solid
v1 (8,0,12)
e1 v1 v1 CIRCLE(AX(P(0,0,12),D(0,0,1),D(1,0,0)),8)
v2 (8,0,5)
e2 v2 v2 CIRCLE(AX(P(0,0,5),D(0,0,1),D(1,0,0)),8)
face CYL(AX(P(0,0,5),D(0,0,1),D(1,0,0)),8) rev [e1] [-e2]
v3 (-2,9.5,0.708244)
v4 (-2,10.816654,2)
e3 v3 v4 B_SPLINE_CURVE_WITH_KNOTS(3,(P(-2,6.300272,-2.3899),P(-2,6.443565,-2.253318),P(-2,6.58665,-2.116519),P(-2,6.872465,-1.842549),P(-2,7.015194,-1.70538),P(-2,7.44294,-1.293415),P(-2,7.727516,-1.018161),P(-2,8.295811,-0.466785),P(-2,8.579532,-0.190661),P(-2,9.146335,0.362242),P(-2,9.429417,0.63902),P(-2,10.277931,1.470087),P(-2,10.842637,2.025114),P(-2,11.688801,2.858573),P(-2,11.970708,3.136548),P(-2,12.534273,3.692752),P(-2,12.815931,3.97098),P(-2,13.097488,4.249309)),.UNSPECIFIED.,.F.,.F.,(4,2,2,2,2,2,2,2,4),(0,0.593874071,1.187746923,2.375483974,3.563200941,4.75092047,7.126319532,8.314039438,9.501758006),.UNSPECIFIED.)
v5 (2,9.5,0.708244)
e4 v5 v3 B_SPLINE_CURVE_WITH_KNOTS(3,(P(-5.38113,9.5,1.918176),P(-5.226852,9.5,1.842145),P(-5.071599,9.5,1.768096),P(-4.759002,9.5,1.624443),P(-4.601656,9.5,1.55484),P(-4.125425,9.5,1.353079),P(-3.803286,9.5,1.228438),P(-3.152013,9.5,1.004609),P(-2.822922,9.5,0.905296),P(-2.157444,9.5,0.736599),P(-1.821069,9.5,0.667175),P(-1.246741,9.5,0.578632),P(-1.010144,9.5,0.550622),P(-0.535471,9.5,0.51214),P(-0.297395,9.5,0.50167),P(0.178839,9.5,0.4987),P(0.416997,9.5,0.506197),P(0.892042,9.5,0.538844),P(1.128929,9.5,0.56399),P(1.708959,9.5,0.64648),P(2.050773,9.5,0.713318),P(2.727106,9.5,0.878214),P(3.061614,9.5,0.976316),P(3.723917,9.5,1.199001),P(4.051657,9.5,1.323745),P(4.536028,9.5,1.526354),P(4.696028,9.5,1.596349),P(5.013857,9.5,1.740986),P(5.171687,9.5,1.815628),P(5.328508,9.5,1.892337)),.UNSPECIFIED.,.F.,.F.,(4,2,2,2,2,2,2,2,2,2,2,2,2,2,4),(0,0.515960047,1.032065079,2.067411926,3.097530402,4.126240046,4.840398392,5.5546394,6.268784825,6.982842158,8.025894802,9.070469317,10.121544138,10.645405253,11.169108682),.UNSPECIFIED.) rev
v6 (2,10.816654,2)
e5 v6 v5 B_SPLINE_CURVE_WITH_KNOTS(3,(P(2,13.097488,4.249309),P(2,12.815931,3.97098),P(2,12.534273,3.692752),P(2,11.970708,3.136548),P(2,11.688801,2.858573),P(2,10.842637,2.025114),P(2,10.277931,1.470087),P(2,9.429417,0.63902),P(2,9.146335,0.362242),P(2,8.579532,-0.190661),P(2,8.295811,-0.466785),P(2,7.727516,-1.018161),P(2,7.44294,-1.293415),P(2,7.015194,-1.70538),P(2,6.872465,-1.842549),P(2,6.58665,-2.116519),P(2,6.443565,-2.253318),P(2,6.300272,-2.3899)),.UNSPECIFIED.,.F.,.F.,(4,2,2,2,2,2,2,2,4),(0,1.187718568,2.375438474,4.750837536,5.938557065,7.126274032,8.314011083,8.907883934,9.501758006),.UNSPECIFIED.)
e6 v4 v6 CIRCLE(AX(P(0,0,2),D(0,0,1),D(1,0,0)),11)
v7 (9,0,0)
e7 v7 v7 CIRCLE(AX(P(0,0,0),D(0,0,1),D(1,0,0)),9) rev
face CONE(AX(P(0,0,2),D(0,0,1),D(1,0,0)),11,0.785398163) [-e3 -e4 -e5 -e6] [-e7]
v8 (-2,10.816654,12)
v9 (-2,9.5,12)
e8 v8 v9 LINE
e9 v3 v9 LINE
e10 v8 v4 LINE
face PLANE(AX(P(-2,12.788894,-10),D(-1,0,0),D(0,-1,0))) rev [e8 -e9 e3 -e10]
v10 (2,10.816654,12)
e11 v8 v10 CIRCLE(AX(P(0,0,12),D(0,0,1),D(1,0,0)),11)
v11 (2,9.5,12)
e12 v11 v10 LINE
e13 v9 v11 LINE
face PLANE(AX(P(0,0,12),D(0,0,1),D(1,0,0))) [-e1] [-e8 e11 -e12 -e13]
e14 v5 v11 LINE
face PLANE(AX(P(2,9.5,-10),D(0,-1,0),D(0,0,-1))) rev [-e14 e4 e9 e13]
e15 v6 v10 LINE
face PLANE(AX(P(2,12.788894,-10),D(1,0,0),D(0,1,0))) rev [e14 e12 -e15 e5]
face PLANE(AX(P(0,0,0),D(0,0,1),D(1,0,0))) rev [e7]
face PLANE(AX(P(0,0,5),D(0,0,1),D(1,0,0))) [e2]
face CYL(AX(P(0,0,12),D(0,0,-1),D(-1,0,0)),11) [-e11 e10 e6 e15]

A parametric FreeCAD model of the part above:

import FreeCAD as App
import Part
import Sketcher
from FreeCAD import Vector


def edges_at(feature, points):
    """Names of the edges that pass closest to the given points."""
    edges = feature.Shape.Edges
    near = lambda p: min(range(len(edges)), key=lambda i: edges[i].distToShape(Part.Vertex(*p))[0])
    return sorted({f"Edge{near(p) + 1}" for p in points})

doc = App.newDocument("Part")
body = doc.addObject("PartDesign::Body", "Body")

# Sketch on XY plane
sketch1 = body.newObject("Sketcher::SketchObject", "Sketch")
sketch1.AttachmentSupport = (doc.getObject("XY_Plane"), [""])
sketch1.MapMode = "FlatFace"
sketch1.addGeometry(Part.Circle(Vector(0, 0, 0), Vector(0, 0, 1), 11), False)
sketch1.addConstraint(Sketcher.Constraint("Coincident", 0, 3, -1, 1))
sketch1.addConstraint(Sketcher.Constraint("Diameter", 0, 22.0))
pad1 = body.newObject("PartDesign::Pad", "Pad")
pad1.Profile = sketch1
pad1.Length = 12

# Sketch on XY plane
sketch2 = body.newObject("Sketcher::SketchObject", "Sketch001")
sketch2.AttachmentSupport = (doc.getObject("XY_Plane"), [""])
sketch2.MapMode = "FlatFace"
sketch2.AttachmentOffset = App.Placement(Vector(0, 0, 12), App.Rotation())
sketch2.addGeometry(Part.Circle(Vector(0, 0, 0), Vector(0, 0, 1), 8), False)
sketch2.addConstraint(Sketcher.Constraint("Coincident", 0, 3, -1, 1))
sketch2.addConstraint(Sketcher.Constraint("Diameter", 0, 16.0))
pocket1 = body.newObject("PartDesign::Pocket", "Pocket")
pocket1.Profile = sketch2
pocket1.Length = 7
doc.recompute()

chamfer = body.newObject("PartDesign::Chamfer", "Chamfer")
chamfer.Base = (pocket1, edges_at(pocket1, [(-11, 0, 0)]))
chamfer.Size = 2

# Sketch on XY plane
sketch3 = body.newObject("Sketcher::SketchObject", "Sketch002")
sketch3.AttachmentSupport = (doc.getObject("XY_Plane"), [""])
sketch3.MapMode = "FlatFace"
sketch3.AttachmentOffset = App.Placement(Vector(0, 0, 12), App.Rotation())
sketch3.addGeometry(Part.LineSegment(Vector(-2, 12.788894, 0), Vector(-2, 9.5, 0)), False)
sketch3.addGeometry(Part.LineSegment(Vector(-2, 9.5, 0), Vector(2, 9.5, 0)), False)
sketch3.addGeometry(Part.LineSegment(Vector(2, 9.5, 0), Vector(2, 12.788894, 0)), False)
sketch3.addGeometry(Part.LineSegment(Vector(2, 12.788894, 0), Vector(-2, 12.788894, 0)), False)
sketch3.addConstraint(Sketcher.Constraint("Coincident", 0, 2, 1, 1))
sketch3.addConstraint(Sketcher.Constraint("Coincident", 1, 2, 2, 1))
sketch3.addConstraint(Sketcher.Constraint("Coincident", 2, 2, 3, 1))
sketch3.addConstraint(Sketcher.Constraint("Coincident", 3, 2, 0, 1))
sketch3.addConstraint(Sketcher.Constraint("Vertical", 0))
sketch3.addConstraint(Sketcher.Constraint("Horizontal", 1))
sketch3.addConstraint(Sketcher.Constraint("Vertical", 2))
sketch3.addConstraint(Sketcher.Constraint("Horizontal", 3))
sketch3.addConstraint(Sketcher.Constraint("DistanceX", 1, 1, 1, 2, 4.0))
sketch3.addConstraint(Sketcher.Constraint("DistanceX", 0, 2, -1, 1, 2.0))
sketch3.addConstraint(Sketcher.Constraint("DistanceY", -1, 1, 0, 2, 9.5))
sketch3.addConstraint(Sketcher.Constraint("DistanceY", 0, 2, 0, 1, 3.288894))
pocket2 = body.newObject("PartDesign::Pocket", "Pocket001")
pocket2.Profile = sketch3
pocket2.Length = 22

doc.recompute()
